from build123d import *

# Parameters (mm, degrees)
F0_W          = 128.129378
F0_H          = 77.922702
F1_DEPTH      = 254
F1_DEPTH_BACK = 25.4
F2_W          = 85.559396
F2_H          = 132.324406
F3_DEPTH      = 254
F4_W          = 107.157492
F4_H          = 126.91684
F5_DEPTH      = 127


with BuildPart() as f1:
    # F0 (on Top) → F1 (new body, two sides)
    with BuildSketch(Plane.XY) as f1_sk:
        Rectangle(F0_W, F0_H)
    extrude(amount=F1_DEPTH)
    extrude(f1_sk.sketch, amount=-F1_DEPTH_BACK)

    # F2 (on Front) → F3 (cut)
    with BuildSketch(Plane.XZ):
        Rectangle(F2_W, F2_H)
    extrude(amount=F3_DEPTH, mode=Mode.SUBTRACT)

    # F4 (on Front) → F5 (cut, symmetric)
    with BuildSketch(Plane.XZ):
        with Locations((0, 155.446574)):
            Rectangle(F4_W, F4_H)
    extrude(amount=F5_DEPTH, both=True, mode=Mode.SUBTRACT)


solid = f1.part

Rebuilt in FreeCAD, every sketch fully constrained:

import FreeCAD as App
import Part
import Sketcher

V = App.Vector


def add_polygon(sketch, points):
    """Adds a closed chain of lines whose ends are joined by coincident constraints."""
    first, n = sketch.GeometryCount, len(points)
    for a, b in zip(points, points[1:] + points[:1]):
        sketch.addGeometry(Part.LineSegment(App.Vector(*a, 0), App.Vector(*b, 0)), False)
    for i in range(n):
        sketch.addConstraint(Sketcher.Constraint("Coincident", first + i, 2, first + (i + 1) % n, 1))

doc = App.newDocument("Part")
params = doc.addObject("Spreadsheet::Sheet", "Params")
for row, (alias, value) in enumerate([
    ("pad1_length", "10 in"),
    ("pad1_length2", "1 in"),
    ("pocket1_length", "10 in"),
    ("pocket2_length", "10 in"),
], start=1):
    params.set(f"A{row}", alias)
    params.set(f"B{row}", "=" + value)
    params.setAlias(f"B{row}", alias)

body = doc.addObject("PartDesign::Body", "Body")

sketch1 = body.newObject("Sketcher::SketchObject", "Sketch")
sketch1.AttachmentSupport = (doc.getObject("XY_Plane"), [""])
sketch1.MapMode = "FlatFace"
add_polygon(sketch1, [(-64, 39), (-64, -39), (64, -39), (64, 39)])
sketch1.addConstraint([
    Sketcher.Constraint("Vertical", 0),
    Sketcher.Constraint("Horizontal", 1),
    Sketcher.Constraint("Vertical", 2),
    Sketcher.Constraint("Horizontal", 3),
    Sketcher.Constraint("Symmetric", 0, 2, 2, 2, -1, 1),
    Sketcher.Constraint("DistanceY", 0, 2, 0, 1, 77.922702),
    Sketcher.Constraint("DistanceX", 1, 1, 1, 2, 128.129378),
])
pad1 = body.newObject("PartDesign::Pad", "Pad")
pad1.Profile = sketch1
pad1.Type = "TwoLengths"
pad1.setExpression("Length", "Params.pad1_length")
pad1.setExpression("Length2", "Params.pad1_length2")

sketch2 = body.newObject("Sketcher::SketchObject", "Sketch001")
sketch2.AttachmentSupport = (doc.getObject("XZ_Plane"), [""])
sketch2.MapMode = "FlatFace"
add_polygon(sketch2, [(-43, 66), (-43, -66), (43, -66), (43, 66)])
sketch2.addConstraint([
    Sketcher.Constraint("Vertical", 0),
    Sketcher.Constraint("Horizontal", 1),
    Sketcher.Constraint("Vertical", 2),
    Sketcher.Constraint("Horizontal", 3),
    Sketcher.Constraint("Symmetric", 0, 2, 2, 2, -1, 1),
    Sketcher.Constraint("DistanceX", 0, 2, -1, 1, 42.779698),
    Sketcher.Constraint("DistanceY", 0, 2, 0, 1, 132.324406),
])
pocket1 = body.newObject("PartDesign::Pocket", "Pocket")
pocket1.Profile = sketch2
pocket1.setExpression("Length", "Params.pocket1_length")
pocket1.Reversed = True

sketch3 = body.newObject("Sketcher::SketchObject", "Sketch002")
sketch3.AttachmentSupport = (doc.getObject("XZ_Plane"), [""])
sketch3.MapMode = "FlatFace"
add_polygon(sketch3, [(-54, 219), (-54, 92), (54, 92), (54, 219)])
sketch3.addConstraint([
    Sketcher.Constraint("Vertical", 0),
    Sketcher.Constraint("Horizontal", 1),
    Sketcher.Constraint("Vertical", 2),
    Sketcher.Constraint("Horizontal", 3),
    Sketcher.Constraint("DistanceY", 0, 2, 0, 1, 126.91684),
    Sketcher.Constraint("DistanceX", 1, 1, 1, 2, 107.157492),
    Sketcher.Constraint("DistanceX", 0, 2, -1, 1, 53.578746),
    Sketcher.Constraint("DistanceY", -1, 1, 0, 2, 91.988154),
])
pocket2 = body.newObject("PartDesign::Pocket", "Pocket001")
pocket2.Profile = sketch3
pocket2.setExpression("Length", "Params.pocket2_length")
pocket2.Midplane = True

doc.recompute()
